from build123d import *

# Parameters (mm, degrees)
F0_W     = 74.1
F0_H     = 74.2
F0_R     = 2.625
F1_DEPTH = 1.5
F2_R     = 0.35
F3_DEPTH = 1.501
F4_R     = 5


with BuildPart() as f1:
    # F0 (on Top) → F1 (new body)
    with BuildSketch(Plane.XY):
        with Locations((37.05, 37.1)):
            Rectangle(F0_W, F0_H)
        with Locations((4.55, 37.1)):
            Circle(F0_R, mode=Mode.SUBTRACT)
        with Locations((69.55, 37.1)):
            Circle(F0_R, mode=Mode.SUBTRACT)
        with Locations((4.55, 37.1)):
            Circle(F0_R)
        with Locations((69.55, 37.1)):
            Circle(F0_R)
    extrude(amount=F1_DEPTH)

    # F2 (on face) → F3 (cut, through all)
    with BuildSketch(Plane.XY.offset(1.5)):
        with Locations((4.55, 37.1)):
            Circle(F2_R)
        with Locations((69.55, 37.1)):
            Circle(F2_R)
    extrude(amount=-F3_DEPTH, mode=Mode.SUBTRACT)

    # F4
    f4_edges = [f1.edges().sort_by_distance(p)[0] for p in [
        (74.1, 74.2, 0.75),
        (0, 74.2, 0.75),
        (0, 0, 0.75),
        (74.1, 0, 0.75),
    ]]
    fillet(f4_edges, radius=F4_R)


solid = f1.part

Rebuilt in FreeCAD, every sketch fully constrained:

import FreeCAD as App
import Part
import Sketcher
from FreeCAD import Vector
Q = App.Units.Quantity


def edges_at(feature, points):
    """Names of the edges that pass closest to the given points."""
    edges = feature.Shape.Edges
    near = lambda p: min(range(len(edges)), key=lambda i: edges[i].distToShape(Part.Vertex(*p))[0])
    return sorted({f"Edge{near(p) + 1}" for p in points})

doc = App.newDocument("Part")
body = doc.addObject("PartDesign::Body", "Body")

# Sketch on XY plane
sketch1 = doc.addObject("Sketcher::SketchObject", "Sketch")
body.addObject(sketch1)
sketch1.AttachmentSupport = (doc.XY_Plane, [""])
sketch1.MapMode = "FlatFace"
sketch1.addGeometry([
    Part.LineSegment(Vector(0, 74, 0), Vector(0, 0, 0)),
    Part.LineSegment(Vector(0, 0, 0), Vector(74, 0, 0)),
    Part.LineSegment(Vector(74, 0, 0), Vector(74, 74, 0)),
    Part.LineSegment(Vector(74, 74, 0), Vector(0, 74, 0)),
], False)
sketch1.addConstraint([
    Sketcher.Constraint("Coincident", 0, 2, 1, 1),
    Sketcher.Constraint("Coincident", 1, 2, 2, 1),
    Sketcher.Constraint("Coincident", 2, 2, 3, 1),
    Sketcher.Constraint("Coincident", 3, 2, 0, 1),
    Sketcher.Constraint("Vertical", 0),
    Sketcher.Constraint("Horizontal", 1),
    Sketcher.Constraint("Vertical", 2),
    Sketcher.Constraint("Horizontal", 3),
    Sketcher.Constraint("Coincident", 0, 2, -1, 1),
    Sketcher.Constraint("DistanceX", 1, 1, 1, 2, Q("74.1 mm")),
    Sketcher.Constraint("DistanceY", 0, 2, 0, 1, Q("74.2 mm")),
])
pad1 = doc.addObject("PartDesign::Pad", "Pad")
body.addObject(pad1)
pad1.Profile = sketch1
pad1.Length = 1.5

# Sketch on XY plane
sketch2 = doc.addObject("Sketcher::SketchObject", "Sketch001")
body.addObject(sketch2)
sketch2.AttachmentSupport = (doc.XY_Plane, [""])
sketch2.MapMode = "FlatFace"
sketch2.AttachmentOffset = App.Placement(Vector(0, 0, 1.5), App.Rotation())
sketch2.addGeometry([
    Part.Circle(Vector(4.55, 37.1, 0), Vector(0, 0, 1), 0.35),
    Part.Circle(Vector(69.55, 37.1, 0), Vector(0, 0, 1), 0.35),
], False)
sketch2.addConstraint([
    Sketcher.Constraint("Equal", 0, 1),
    Sketcher.Constraint("Horizontal", 0, 3, 1, 3),
    Sketcher.Constraint("Diameter", 0, Q("0.7 mm")),
    Sketcher.Constraint("DistanceX", 0, 3, 1, 3, Q("65 mm")),
    Sketcher.Constraint("DistanceY", -1, 1, 0, 3, Q("37.1 mm")),
    Sketcher.Constraint("DistanceX", -1, 1, 0, 3, Q("4.55 mm")),
])
pocket1 = doc.addObject("PartDesign::Pocket", "Pocket")
body.addObject(pocket1)
pocket1.Profile = sketch2
pocket1.Type = "ThroughAll"
doc.recompute()

fillet = doc.addObject("PartDesign::Fillet", "Fillet")
body.addObject(fillet)
fillet.Base = (pocket1, edges_at(pocket1, [
    (74.1, 74.2, 0.75),
    (0, 74.2, 0.75),
    (0, 0, 0.75),
    (74.1, 0, 0.75),
]))
fillet.Radius = 5

doc.recompute()
